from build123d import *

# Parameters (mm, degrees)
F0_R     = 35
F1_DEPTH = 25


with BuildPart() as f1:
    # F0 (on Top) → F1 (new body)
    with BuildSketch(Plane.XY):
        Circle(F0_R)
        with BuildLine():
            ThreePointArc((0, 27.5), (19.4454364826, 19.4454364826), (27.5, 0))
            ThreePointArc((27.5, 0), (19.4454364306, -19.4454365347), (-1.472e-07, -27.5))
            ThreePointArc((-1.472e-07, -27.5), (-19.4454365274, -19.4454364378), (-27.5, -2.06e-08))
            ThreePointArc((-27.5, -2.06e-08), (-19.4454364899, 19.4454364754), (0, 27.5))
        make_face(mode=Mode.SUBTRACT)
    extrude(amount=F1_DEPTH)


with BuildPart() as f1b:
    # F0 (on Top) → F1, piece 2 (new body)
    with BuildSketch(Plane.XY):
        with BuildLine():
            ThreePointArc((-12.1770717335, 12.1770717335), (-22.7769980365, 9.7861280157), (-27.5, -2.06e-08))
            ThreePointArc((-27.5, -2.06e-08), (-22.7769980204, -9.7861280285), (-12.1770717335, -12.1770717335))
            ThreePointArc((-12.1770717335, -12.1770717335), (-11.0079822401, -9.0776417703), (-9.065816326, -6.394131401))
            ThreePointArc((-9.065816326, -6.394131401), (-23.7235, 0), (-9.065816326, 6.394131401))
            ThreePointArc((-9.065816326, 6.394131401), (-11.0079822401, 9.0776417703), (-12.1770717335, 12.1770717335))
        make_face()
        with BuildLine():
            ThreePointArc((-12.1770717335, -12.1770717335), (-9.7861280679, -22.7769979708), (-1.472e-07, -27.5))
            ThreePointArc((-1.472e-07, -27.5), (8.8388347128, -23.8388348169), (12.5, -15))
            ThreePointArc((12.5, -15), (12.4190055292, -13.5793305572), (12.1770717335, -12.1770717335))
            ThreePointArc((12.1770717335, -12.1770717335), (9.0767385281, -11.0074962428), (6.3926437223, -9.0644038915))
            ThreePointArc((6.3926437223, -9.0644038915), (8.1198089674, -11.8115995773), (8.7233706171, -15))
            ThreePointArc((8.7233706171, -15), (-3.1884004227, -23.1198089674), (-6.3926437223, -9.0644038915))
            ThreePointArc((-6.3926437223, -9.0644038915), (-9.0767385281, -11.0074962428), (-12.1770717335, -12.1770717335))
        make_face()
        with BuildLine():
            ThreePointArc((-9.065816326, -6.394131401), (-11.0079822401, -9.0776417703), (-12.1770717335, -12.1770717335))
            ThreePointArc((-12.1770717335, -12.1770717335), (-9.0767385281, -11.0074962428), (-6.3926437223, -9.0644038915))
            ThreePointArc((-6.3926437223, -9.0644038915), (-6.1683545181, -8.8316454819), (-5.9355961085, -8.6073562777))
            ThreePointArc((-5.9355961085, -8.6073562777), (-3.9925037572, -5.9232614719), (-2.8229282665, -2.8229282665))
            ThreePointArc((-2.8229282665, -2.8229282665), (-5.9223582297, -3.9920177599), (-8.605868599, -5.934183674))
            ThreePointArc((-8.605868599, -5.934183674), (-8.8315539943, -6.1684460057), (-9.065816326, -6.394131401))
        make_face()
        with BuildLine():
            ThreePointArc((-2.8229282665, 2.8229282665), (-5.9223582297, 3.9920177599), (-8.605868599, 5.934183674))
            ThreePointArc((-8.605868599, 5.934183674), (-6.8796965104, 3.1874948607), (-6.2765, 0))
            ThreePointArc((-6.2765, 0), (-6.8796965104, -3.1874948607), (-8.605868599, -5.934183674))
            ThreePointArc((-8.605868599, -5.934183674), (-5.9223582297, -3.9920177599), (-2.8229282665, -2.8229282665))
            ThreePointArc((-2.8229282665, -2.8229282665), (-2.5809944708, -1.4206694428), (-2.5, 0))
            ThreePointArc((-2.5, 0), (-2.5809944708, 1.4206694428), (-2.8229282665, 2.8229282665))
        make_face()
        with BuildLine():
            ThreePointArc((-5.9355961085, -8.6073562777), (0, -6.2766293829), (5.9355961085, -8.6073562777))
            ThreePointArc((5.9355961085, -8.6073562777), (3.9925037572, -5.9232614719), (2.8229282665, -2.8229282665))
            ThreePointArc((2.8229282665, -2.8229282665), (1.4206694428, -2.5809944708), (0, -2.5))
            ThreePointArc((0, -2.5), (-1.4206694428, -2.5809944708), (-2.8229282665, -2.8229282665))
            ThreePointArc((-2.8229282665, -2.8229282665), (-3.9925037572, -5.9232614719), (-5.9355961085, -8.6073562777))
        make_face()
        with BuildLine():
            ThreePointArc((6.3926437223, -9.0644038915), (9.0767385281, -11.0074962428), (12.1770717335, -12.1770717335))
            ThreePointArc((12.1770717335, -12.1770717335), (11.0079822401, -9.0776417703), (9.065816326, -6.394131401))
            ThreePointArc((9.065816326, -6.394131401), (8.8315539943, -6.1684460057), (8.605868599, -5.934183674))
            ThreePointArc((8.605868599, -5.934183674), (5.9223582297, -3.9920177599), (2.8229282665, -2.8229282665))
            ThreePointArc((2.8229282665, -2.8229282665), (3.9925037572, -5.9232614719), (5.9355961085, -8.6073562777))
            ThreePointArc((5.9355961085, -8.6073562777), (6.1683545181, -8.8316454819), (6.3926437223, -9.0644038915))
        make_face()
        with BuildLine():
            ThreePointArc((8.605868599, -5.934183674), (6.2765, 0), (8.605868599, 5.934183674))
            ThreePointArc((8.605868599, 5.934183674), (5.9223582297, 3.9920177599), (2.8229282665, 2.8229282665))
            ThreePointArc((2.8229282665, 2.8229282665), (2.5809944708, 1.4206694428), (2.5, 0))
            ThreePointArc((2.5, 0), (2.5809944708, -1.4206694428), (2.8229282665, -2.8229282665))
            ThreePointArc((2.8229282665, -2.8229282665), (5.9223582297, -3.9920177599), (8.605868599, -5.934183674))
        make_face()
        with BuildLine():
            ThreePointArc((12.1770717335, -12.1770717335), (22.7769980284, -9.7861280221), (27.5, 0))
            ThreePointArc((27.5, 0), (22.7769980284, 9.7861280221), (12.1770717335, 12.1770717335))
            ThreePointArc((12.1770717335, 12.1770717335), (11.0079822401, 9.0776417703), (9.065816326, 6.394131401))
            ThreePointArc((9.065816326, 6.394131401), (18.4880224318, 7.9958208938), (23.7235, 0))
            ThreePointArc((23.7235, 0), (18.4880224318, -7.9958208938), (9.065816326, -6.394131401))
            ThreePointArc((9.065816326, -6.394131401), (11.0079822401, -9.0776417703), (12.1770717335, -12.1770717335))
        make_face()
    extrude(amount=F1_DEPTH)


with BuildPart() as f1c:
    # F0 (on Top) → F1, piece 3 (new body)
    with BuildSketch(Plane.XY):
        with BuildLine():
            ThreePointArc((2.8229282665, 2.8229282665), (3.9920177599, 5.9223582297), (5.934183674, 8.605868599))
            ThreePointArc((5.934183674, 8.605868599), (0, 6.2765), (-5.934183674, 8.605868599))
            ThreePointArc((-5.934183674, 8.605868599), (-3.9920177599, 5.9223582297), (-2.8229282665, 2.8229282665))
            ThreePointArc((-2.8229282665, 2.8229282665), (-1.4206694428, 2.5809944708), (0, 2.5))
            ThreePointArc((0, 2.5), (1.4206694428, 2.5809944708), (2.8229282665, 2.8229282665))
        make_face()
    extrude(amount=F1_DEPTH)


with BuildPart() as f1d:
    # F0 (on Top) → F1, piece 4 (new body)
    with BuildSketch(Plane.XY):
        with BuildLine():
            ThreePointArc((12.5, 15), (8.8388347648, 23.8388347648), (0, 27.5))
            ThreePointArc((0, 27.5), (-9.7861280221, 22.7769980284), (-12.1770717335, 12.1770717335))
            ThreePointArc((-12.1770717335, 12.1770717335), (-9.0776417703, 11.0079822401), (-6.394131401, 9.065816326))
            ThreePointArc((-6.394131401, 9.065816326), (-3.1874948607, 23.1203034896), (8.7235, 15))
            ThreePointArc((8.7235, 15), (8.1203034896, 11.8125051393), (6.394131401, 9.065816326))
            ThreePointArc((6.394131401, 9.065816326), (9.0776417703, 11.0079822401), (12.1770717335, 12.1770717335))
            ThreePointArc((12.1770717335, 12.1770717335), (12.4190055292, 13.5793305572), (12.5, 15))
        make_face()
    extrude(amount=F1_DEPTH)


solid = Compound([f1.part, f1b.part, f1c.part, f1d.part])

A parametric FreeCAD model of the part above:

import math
import FreeCAD as App
import Part
import Sketcher

doc = App.newDocument("Part")
body = doc.addObject("PartDesign::Body", "Body")

sketch1 = body.newObject("Sketcher::SketchObject", "Sketch")
sketch1.AttachmentSupport = (doc.getObject("XY_Plane"), [""])
sketch1.MapMode = "FlatFace"
sketch1.addGeometry([
    Part.Circle(App.Vector(0, 0, 0), App.Vector(0, 0, 1), 35),
    Part.ArcOfCircle(Part.Circle(App.Vector(0, 0, 0), App.Vector(0, 0, 1), 28), math.radians(90), math.radians(180)),
    Part.ArcOfCircle(Part.Circle(App.Vector(0, 0, 0), App.Vector(0, 0, 1), 28), math.radians(0), math.radians(90)),
    Part.ArcOfCircle(Part.Circle(App.Vector(0, 0, 0), App.Vector(0, 0, 1), 28), math.radians(-90), math.radians(0)),
    Part.ArcOfCircle(Part.Circle(App.Vector(0, 0, 0), App.Vector(0, 0, 1), 28), math.radians(-180), math.radians(-90)),
], False)
sketch1.addConstraint([
    Sketcher.Constraint("Tangent", 1, 1, 2, 2),
    Sketcher.Constraint("Tangent", 2, 1, 3, 2),
    Sketcher.Constraint("Tangent", 3, 1, 4, 2),
    Sketcher.Constraint("Tangent", 4, 1, 1, 2),
    Sketcher.Constraint("Coincident", 0, 3, -1, 1),
    Sketcher.Constraint("Coincident", 1, 3, -1, 1),
    Sketcher.Constraint("Equal", 1, 2),
    Sketcher.Constraint("PointOnObject", 1, 1, -2),
    Sketcher.Constraint("PointOnObject", 2, 1, -1),
    Sketcher.Constraint("PointOnObject", 3, 1, -2),
    Sketcher.Constraint("PointOnObject", 4, 1, -1),
    Sketcher.Constraint("Diameter", 0, 70.0),
    Sketcher.Constraint("Radius", 1, 27.5),
])
pad1 = body.newObject("PartDesign::Pad", "Pad")
pad1.Profile = sketch1
pad1.Length = 25
body2 = doc.addObject("PartDesign::Body", "Body001")

sketch2 = body2.newObject("Sketcher::SketchObject", "Sketch001")
sketch2.AttachmentSupport = (doc.getObject("XY_Plane001"), [""])
sketch2.MapMode = "FlatFace"
sketch2.addGeometry([
    Part.ArcOfCircle(Part.Circle(App.Vector(-15, 0, 0), App.Vector(0, 0, 1), 12.5), math.radians(77), math.radians(180)),
    Part.ArcOfCircle(Part.Circle(App.Vector(-15, 0, 0), App.Vector(0, 0, 1), 12.5), math.radians(-180), math.radians(-77)),
    Part.ArcOfCircle(Part.Circle(App.Vector(0, -15, 0), App.Vector(0, 0, 1), 12.5), math.radians(167), math.radians(270)),
    Part.ArcOfCircle(Part.Circle(App.Vector(0, -15, 0), App.Vector(0, 0, 1), 12.5), math.radians(-90), math.radians(0)),
    Part.ArcOfCircle(Part.Circle(App.Vector(0, -15, 0), App.Vector(0, 0, 1), 12.5), math.radians(0), math.radians(13.05)),
    Part.ArcOfCircle(Part.Circle(App.Vector(15, 0, 0), App.Vector(0, 0, 1), 12.5), math.radians(-103), math.radians(0)),
    Part.ArcOfCircle(Part.Circle(App.Vector(15, 0, 0), App.Vector(0, 0, 1), 12.5), math.radians(0), math.radians(103)),
    Part.ArcOfCircle(Part.Circle(App.Vector(0, 15, 0), App.Vector(0, 0, 1), 12.5), math.radians(-44), math.radians(-13)),
    Part.ArcOfCircle(Part.Circle(App.Vector(15, 0, 0), App.Vector(0, 0, 1), 8.7), math.radians(0), math.radians(133)),
    Part.ArcOfCircle(Part.Circle(App.Vector(15, 0, 0), App.Vector(0, 0, 1), 8.7), math.radians(-133), math.radians(0)),
    Part.ArcOfCircle(Part.Circle(App.Vector(15, 0, 0), App.Vector(0, 0, 1), 8.7), math.radians(-137.14), math.radians(-132.86)),
    Part.ArcOfCircle(Part.Circle(App.Vector(15, 0, 0), App.Vector(0, 0, 1), 8.7), math.radians(137), math.radians(223)),
    Part.ArcOfCircle(Part.Circle(App.Vector(0, 15, 0), App.Vector(0, 0, 1), 12.5), math.radians(-77), math.radians(-46)),
    Part.ArcOfCircle(Part.Circle(App.Vector(15, 0, 0), App.Vector(0, 0, 1), 12.5), math.radians(166.95), math.radians(180)),
    Part.ArcOfCircle(Part.Circle(App.Vector(15, 0, 0), App.Vector(0, 0, 1), 12.5), math.radians(180), math.radians(193.05)),
    Part.ArcOfCircle(Part.Circle(App.Vector(0, -15, 0), App.Vector(0, 0, 1), 12.5), math.radians(76.95), math.radians(90)),
    Part.ArcOfCircle(Part.Circle(App.Vector(0, -15, 0), App.Vector(0, 0, 1), 12.5), math.radians(90), math.radians(103.05)),
    Part.ArcOfCircle(Part.Circle(App.Vector(-15, 0, 0), App.Vector(0, 0, 1), 12.5), math.radians(-13.05), math.radians(0)),
    Part.ArcOfCircle(Part.Circle(App.Vector(-15, 0, 0), App.Vector(0, 0, 1), 12.5), math.radians(0), math.radians(13.05)),
    Part.ArcOfCircle(Part.Circle(App.Vector(0, 15, 0), App.Vector(0, 0, 1), 12.5), math.radians(-134), math.radians(-103)),
    Part.ArcOfCircle(Part.Circle(App.Vector(-15, 0, 0), App.Vector(0, 0, 1), 8.7), math.radians(0), math.radians(43)),
    Part.ArcOfCircle(Part.Circle(App.Vector(-15, 0, 0), App.Vector(0, 0, 1), 8.7), math.radians(-43), math.radians(0)),
    Part.ArcOfCircle(Part.Circle(App.Vector(-15, 0, 0), App.Vector(0, 0, 1), 8.7), math.radians(-47.14), math.radians(-42.86)),
    Part.ArcOfCircle(Part.Circle(App.Vector(-15, 0, 0), App.Vector(0, 0, 1), 8.7), math.radians(47), math.radians(313)),
    Part.ArcOfCircle(Part.Circle(App.Vector(0, 15, 0), App.Vector(0, 0, 1), 12.5), math.radians(-167), math.radians(-136)),
    Part.ArcOfCircle(Part.Circle(App.Vector(0, -15, 0), App.Vector(0, 0, 1), 8.7), math.radians(0), math.radians(43)),
    Part.ArcOfCircle(Part.Circle(App.Vector(0, -15, 0), App.Vector(0, 0, 1), 8.7), math.radians(137), math.radians(360)),
    Part.ArcOfCircle(Part.Circle(App.Vector(0, -15, 0), App.Vector(0, 0, 1), 8.7), math.radians(132.88), math.radians(137.12)),
    Part.ArcOfCircle(Part.Circle(App.Vector(0, -15, 0), App.Vector(0, 0, 1), 8.7), math.radians(47), math.radians(133)),
    Part.ArcOfCircle(Part.Circle(App.Vector(0, -15, 0), App.Vector(0, 0, 1), 8.7), math.radians(42.88), math.radians(47.12)),
], False)
sketch2.addConstraint([
    Sketcher.Constraint("Tangent", 0, 2, 1, 1),
    Sketcher.Constraint("Coincident", 1, 2, 2, 1),
    Sketcher.Constraint("Tangent", 2, 2, 3, 1),
    Sketcher.Constraint("Tangent", 3, 2, 4, 1),
    Sketcher.Constraint("Coincident", 4, 2, 5, 1),
    Sketcher.Constraint("Tangent", 5, 2, 6, 1),
    Sketcher.Constraint("Coincident", 6, 2, 7, 2),
    Sketcher.Constraint("Coincident", 7, 1, 8, 2),
    Sketcher.Constraint("Tangent", 8, 1, 9, 2),
    Sketcher.Constraint("Tangent", 9, 1, 10, 2),
    Sketcher.Constraint("Tangent", 10, 1, 11, 2),
    Sketcher.Constraint("Coincident", 11, 1, 12, 2),
    Sketcher.Constraint("Coincident", 12, 1, 13, 1),
    Sketcher.Constraint("Tangent", 13, 2, 14, 1),
    Sketcher.Constraint("Coincident", 14, 2, 15, 1),
    Sketcher.Constraint("Tangent", 15, 2, 16, 1),
    Sketcher.Constraint("Coincident", 16, 2, 17, 1),
    Sketcher.Constraint("Tangent", 17, 2, 18, 1),
    Sketcher.Constraint("Coincident", 18, 2, 19, 2),
    Sketcher.Constraint("Coincident", 19, 1, 20, 2),
    Sketcher.Constraint("Tangent", 20, 1, 21, 2),
    Sketcher.Constraint("Tangent", 21, 1, 22, 2),
    Sketcher.Constraint("Tangent", 22, 1, 23, 2),
    Sketcher.Constraint("Coincident", 23, 1, 24, 2),
    Sketcher.Constraint("Coincident", 24, 1, 0, 1),
    Sketcher.Constraint("Tangent", 25, 1, 26, 2),
    Sketcher.Constraint("Tangent", 26, 1, 27, 2),
    Sketcher.Constraint("Tangent", 27, 1, 28, 2),
    Sketcher.Constraint("Tangent", 28, 1, 29, 2),
    Sketcher.Constraint("Tangent", 29, 1, 25, 2),
    Sketcher.Constraint("Coincident", 4, 3, 2, 3),
    Sketcher.Constraint("Coincident", 8, 3, 5, 3),
    Sketcher.Constraint("Coincident", 10, 3, 5, 3),
    Sketcher.Constraint("Coincident", 12, 3, 7, 3),
    Sketcher.Constraint("Coincident", 13, 3, 5, 3),
    Sketcher.Constraint("Coincident", 15, 3, 2, 3),
    Sketcher.Constraint("Coincident", 17, 3, 0, 3),
    Sketcher.Constraint("Coincident", 19, 3, 7, 3),
    Sketcher.Constraint("Coincident", 20, 3, 0, 3),
    Sketcher.Constraint("Coincident", 22, 3, 0, 3),
    Sketcher.Constraint("Coincident", 24, 3, 7, 3),
    Sketcher.Constraint("Coincident", 25, 3, 2, 3),
    Sketcher.Constraint("Coincident", 27, 3, 2, 3),
    Sketcher.Constraint("Equal", 0, 1),
    Sketcher.Constraint("Equal", 1, 2),
    Sketcher.Constraint("Equal", 4, 5),
    Sketcher.Constraint("Equal", 5, 6),
    Sketcher.Constraint("Equal", 6, 7),
    Sketcher.Constraint("Equal", 10, 11),
    Sketcher.Constraint("Equal", 7, 12),
    Sketcher.Constraint("Equal", 12, 13),
    Sketcher.Constraint("Equal", 13, 14),
    Sketcher.Constraint("Equal", 14, 15),
    Sketcher.Constraint("Equal", 15, 16),
    Sketcher.Constraint("Equal", 16, 17),
    Sketcher.Constraint("Equal", 17, 18),
    Sketcher.Constraint("Equal", 18, 19),
    Sketcher.Constraint("Equal", 11, 20),
    Sketcher.Constraint("Equal", 22, 23),
    Sketcher.Constraint("Equal", 19, 24),
    Sketcher.Constraint("Symmetric", 0, 3, 5, 3, -1, 1),
    Sketcher.Constraint("Symmetric", 2, 3, 7, 3, -1, 1),
    Sketcher.Constraint("Symmetric", 1, 2, 4, 2, -2),
    Sketcher.Constraint("PointOnObject", 0, 2, -1),
    Sketcher.Constraint("PointOnObject", 2, 2, -2),
    Sketcher.Constraint("PointOnObject", 5, 2, -1),
    Sketcher.Constraint("PointOnObject", 8, 1, -1),
    Sketcher.Constraint("PointOnObject", 13, 2, -1),
    Sketcher.Constraint("PointOnObject", 15, 2, -2),
    Sketcher.Constraint("PointOnObject", 17, 2, -1),
    Sketcher.Constraint("PointOnObject", 20, 1, -1),
    Sketcher.Constraint("Horizontal", 29, 3, 3, 2),
    Sketcher.Constraint("Horizontal", 10, 1, 21, 1),
    Sketcher.Constraint("Horizontal", 9, 1, 22, 1),
    Sketcher.Constraint("Horizontal", 3, 2, 25, 1),
    Sketcher.Constraint("Horizontal", 27, 1, 28, 1),
    Sketcher.Constraint("Horizontal", 26, 1, 29, 1),
    Sketcher.Constraint("Vertical", 7, 1, 9, 1),
    Sketcher.Constraint("Vertical", 10, 1, 11, 1),
    Sketcher.Constraint("Radius", 0, 12.5),
    Sketcher.Constraint("DistanceX", 0, 3, -1, 1, 15.0),
    Sketcher.Constraint("DistanceY", 2, 3, -1, 1, 15.0),
    Sketcher.Constraint("Radius", 8, 8.7235),
    Sketcher.Constraint("Radius", 25, 8.723371),
    Sketcher.Constraint("DistanceY", 26, 1, 21, 1, 3.13022),
    Sketcher.Constraint("DistanceX", 22, 1, 27, 1, 3.13022),
])
pad2 = body2.newObject("PartDesign::Pad", "Pad001")
pad2.Profile = sketch2
pad2.Length = 25
body3 = doc.addObject("PartDesign::Body", "Body002")

sketch3 = body3.newObject("Sketcher::SketchObject", "Sketch002")
sketch3.AttachmentSupport = (doc.getObject("XY_Plane002"), [""])
sketch3.MapMode = "FlatFace"
sketch3.addGeometry([
    Part.ArcOfCircle(Part.Circle(App.Vector(15, 0, 0), App.Vector(0, 0, 1), 12.5), math.radians(136), math.radians(167)),
    Part.ArcOfCircle(Part.Circle(App.Vector(0, 15, 0), App.Vector(0, 0, 1), 8.7), math.radians(-133), math.radians(-47)),
    Part.ArcOfCircle(Part.Circle(App.Vector(-15, 0, 0), App.Vector(0, 0, 1), 12.5), math.radians(13), math.radians(44)),
    Part.ArcOfCircle(Part.Circle(App.Vector(0, 15, 0), App.Vector(0, 0, 1), 12.5), math.radians(-103.05), math.radians(-90)),
    Part.ArcOfCircle(Part.Circle(App.Vector(0, 15, 0), App.Vector(0, 0, 1), 12.5), math.radians(-90), math.radians(-76.95)),
], False)
sketch3.addConstraint([
    Sketcher.Constraint("Coincident", 0, 1, 1, 2),
    Sketcher.Constraint("Coincident", 1, 1, 2, 2),
    Sketcher.Constraint("Coincident", 2, 1, 3, 1),
    Sketcher.Constraint("Tangent", 3, 2, 4, 1),
    Sketcher.Constraint("Coincident", 4, 2, 0, 2),
    Sketcher.Constraint("Coincident", 3, 3, 1, 3),
    Sketcher.Constraint("Equal", 0, 2),
    Sketcher.Constraint("Equal", 2, 3),
    Sketcher.Constraint("Equal", 3, 4),
    Sketcher.Constraint("Symmetric", 0, 3, 2, 3, -1, 1),
    Sketcher.Constraint("Symmetric", 0, 1, 1, 1, -2),
    Sketcher.Constraint("PointOnObject", 3, 2, -2),
    Sketcher.Constraint("Radius", 0, 12.5),
    Sketcher.Constraint("DistanceX", -1, 1, 0, 3, 15.0),
    Sketcher.Constraint("DistanceY", -1, 1, 1, 3, 15.0),
    Sketcher.Constraint("Radius", 1, 8.7235),
])
pad3 = body3.newObject("PartDesign::Pad", "Pad002")
pad3.Profile = sketch3
pad3.Length = 25
body4 = doc.addObject("PartDesign::Body", "Body003")

sketch4 = body4.newObject("Sketcher::SketchObject", "Sketch003")
sketch4.AttachmentSupport = (doc.getObject("XY_Plane003"), [""])
sketch4.MapMode = "FlatFace"
sketch4.addGeometry([
    Part.ArcOfCircle(Part.Circle(App.Vector(0, 15, 0), App.Vector(0, 0, 1), 12.5), math.radians(0), math.radians(90)),
    Part.ArcOfCircle(Part.Circle(App.Vector(0, 15, 0), App.Vector(0, 0, 1), 12.5), math.radians(90), math.radians(193)),
    Part.ArcOfCircle(Part.Circle(App.Vector(-15, 0, 0), App.Vector(0, 0, 1), 12.5), math.radians(46), math.radians(77)),
    Part.ArcOfCircle(Part.Circle(App.Vector(0, 15, 0), App.Vector(0, 0, 1), 8.7), math.radians(0), math.radians(223)),
    Part.ArcOfCircle(Part.Circle(App.Vector(0, 15, 0), App.Vector(0, 0, 1), 8.7), math.radians(-43), math.radians(0)),
    Part.ArcOfCircle(Part.Circle(App.Vector(15, 0, 0), App.Vector(0, 0, 1), 12.5), math.radians(103), math.radians(134)),
    Part.ArcOfCircle(Part.Circle(App.Vector(0, 15, 0), App.Vector(0, 0, 1), 12.5), math.radians(-13.05), math.radians(0)),
], False)
sketch4.addConstraint([
    Sketcher.Constraint("Tangent", 0, 2, 1, 1),
    Sketcher.Constraint("Coincident", 1, 2, 2, 2),
    Sketcher.Constraint("Coincident", 2, 1, 3, 2),
    Sketcher.Constraint("Tangent", 3, 1, 4, 2),
    Sketcher.Constraint("Coincident", 4, 1, 5, 2),
    Sketcher.Constraint("Coincident", 5, 1, 6, 1),
    Sketcher.Constraint("Tangent", 6, 2, 0, 1),
    Sketcher.Constraint("Coincident", 3, 3, 0, 3),
    Sketcher.Constraint("Equal", 0, 1),
    Sketcher.Constraint("Equal", 1, 2),
    Sketcher.Constraint("Equal", 3, 4),
    Sketcher.Constraint("Equal", 2, 5),
    Sketcher.Constraint("Equal", 5, 6),
    Sketcher.Constraint("Symmetric", 2, 3, 5, 3, -1, 1),
    Sketcher.Constraint("Symmetric", 2, 1, 4, 1, -2),
    Sketcher.Constraint("PointOnObject", 0, 2, -2),
    Sketcher.Constraint("Horizontal", 6, 3, 3, 1),
    Sketcher.Constraint("Horizontal", 3, 1, 6, 2),
    Sketcher.Constraint("Radius", 0, 12.5),
    Sketcher.Constraint("DistanceY", -1, 1, 0, 3, 15.0),
    Sketcher.Constraint("DistanceX", 2, 3, -1, 1, 15.0),
    Sketcher.Constraint("Radius", 3, 8.7235),
])
pad4 = body4.newObject("PartDesign::Pad", "Pad003")
pad4.Profile = sketch4
pad4.Length = 25

doc.recompute()
